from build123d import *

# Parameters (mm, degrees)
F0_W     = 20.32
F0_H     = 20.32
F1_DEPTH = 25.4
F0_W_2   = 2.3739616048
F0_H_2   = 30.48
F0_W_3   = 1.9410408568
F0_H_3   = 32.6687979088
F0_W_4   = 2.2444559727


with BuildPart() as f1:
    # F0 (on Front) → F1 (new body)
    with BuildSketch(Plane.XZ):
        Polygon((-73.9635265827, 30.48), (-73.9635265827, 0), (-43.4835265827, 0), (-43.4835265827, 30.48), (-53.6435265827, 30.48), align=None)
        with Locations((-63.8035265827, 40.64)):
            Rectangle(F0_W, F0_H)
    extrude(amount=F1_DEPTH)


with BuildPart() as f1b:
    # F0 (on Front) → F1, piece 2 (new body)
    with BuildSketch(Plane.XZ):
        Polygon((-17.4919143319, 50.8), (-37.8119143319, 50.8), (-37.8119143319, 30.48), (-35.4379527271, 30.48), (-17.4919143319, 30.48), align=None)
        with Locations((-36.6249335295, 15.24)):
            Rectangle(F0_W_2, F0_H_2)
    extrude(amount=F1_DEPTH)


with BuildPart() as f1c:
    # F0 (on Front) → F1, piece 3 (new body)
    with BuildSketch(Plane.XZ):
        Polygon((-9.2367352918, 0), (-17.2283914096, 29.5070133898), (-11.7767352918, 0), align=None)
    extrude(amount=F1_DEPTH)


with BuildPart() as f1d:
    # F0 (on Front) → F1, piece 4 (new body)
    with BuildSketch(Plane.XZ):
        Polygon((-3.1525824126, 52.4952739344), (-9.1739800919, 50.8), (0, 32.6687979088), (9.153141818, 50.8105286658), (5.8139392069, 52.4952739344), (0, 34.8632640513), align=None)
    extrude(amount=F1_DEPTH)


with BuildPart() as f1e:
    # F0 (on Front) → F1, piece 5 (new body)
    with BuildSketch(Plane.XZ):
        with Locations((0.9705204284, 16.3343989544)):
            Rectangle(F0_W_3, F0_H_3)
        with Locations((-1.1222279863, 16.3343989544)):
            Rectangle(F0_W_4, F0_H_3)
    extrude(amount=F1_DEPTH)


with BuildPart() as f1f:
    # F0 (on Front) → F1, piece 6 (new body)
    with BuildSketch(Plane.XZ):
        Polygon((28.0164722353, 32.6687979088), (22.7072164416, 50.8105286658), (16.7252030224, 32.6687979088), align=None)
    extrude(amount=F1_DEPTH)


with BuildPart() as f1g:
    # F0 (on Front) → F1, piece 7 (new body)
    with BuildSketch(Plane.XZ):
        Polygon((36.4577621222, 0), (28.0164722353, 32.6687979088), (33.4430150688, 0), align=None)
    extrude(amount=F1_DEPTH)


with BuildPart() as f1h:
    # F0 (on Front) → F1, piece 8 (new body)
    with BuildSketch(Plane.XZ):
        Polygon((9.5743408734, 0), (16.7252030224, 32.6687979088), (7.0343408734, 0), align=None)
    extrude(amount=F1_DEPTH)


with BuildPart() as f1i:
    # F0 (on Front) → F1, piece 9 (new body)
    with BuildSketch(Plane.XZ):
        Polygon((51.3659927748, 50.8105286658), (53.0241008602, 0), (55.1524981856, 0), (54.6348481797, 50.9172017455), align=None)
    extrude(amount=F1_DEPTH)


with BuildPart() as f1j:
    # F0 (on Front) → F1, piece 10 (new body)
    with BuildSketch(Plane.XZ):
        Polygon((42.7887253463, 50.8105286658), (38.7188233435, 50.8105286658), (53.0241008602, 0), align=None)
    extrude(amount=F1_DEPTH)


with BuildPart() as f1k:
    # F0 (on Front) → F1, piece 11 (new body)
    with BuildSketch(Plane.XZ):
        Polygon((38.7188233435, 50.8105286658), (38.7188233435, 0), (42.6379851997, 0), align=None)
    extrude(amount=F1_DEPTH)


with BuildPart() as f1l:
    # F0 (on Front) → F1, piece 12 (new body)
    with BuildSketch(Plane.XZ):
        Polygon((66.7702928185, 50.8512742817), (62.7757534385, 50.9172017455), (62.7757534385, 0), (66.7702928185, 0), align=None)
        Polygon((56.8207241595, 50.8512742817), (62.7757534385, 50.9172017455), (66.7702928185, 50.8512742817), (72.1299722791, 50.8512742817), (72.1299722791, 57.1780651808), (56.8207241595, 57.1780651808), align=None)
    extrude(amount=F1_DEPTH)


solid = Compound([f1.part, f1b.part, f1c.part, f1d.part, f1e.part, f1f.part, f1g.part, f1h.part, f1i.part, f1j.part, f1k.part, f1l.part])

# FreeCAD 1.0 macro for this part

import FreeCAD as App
import Part
import Sketcher

V = App.Vector
Q = App.Units.Quantity


def add_polygon(sketch, points):
    """Adds a closed chain of lines whose ends are joined by coincident constraints."""
    first, n = sketch.GeometryCount, len(points)
    for a, b in zip(points, points[1:] + points[:1]):
        sketch.addGeometry(Part.LineSegment(App.Vector(*a, 0), App.Vector(*b, 0)), False)
    for i in range(n):
        sketch.addConstraint(Sketcher.Constraint("Coincident", first + i, 2, first + (i + 1) % n, 1))

doc = App.newDocument("Part")
body = doc.addObject("PartDesign::Body", "Body")

# Sketch on XZ plane
sketch1 = body.newObject("Sketcher::SketchObject", "Sketch")
sketch1.AttachmentSupport = (doc.getObject("XZ_Plane"), [""])
sketch1.MapMode = "FlatFace"
add_polygon(sketch1, [(-74, 0), (-43, 0), (-43, 30), (-54, 30), (-54, 51), (-74, 51)])  # lines 0-5
sketch1.addConstraint(Sketcher.Constraint("Horizontal", 0))
sketch1.addConstraint(Sketcher.Constraint("Vertical", 1))
sketch1.addConstraint(Sketcher.Constraint("Horizontal", 2))
sketch1.addConstraint(Sketcher.Constraint("Vertical", 3))
sketch1.addConstraint(Sketcher.Constraint("Horizontal", 4))
sketch1.addConstraint(Sketcher.Constraint("Vertical", 5))
sketch1.addConstraint(Sketcher.Constraint("PointOnObject", 0, 2, -1))
sketch1.addConstraint(Sketcher.Constraint("Equal", 0, 1))
sketch1.addConstraint(Sketcher.Constraint("Equal", 4, 3))
sketch1.addConstraint(Sketcher.Constraint("DistanceY", 5, 2, 5, 1, Q("2 in")))
sketch1.addConstraint(Sketcher.Constraint("DistanceX", 0, 1, 0, 2, Q("1.2 in")))
sketch1.addConstraint(Sketcher.Constraint("DistanceX", 0, 2, -1, 1, Q("43.483527 mm")))
pad1 = body.newObject("PartDesign::Pad", "Pad")
pad1.Profile = sketch1
pad1.Length = Q("1 in")
body2 = doc.addObject("PartDesign::Body", "Body001")

# Sketch on XZ plane
sketch2 = body2.newObject("Sketcher::SketchObject", "Sketch001")
sketch2.AttachmentSupport = (doc.getObject("XZ_Plane001"), [""])
sketch2.MapMode = "FlatFace"
add_polygon(sketch2, [(-35.4, 30.5), (-17.5, 30.5), (-17.5, 50.8), (-37.8, 50.8), (-37.8, 0), (-35.4, 0)])  # lines 0-5
sketch2.addConstraint(Sketcher.Constraint("Horizontal", 0))
sketch2.addConstraint(Sketcher.Constraint("Vertical", 1))
sketch2.addConstraint(Sketcher.Constraint("Horizontal", 2))
sketch2.addConstraint(Sketcher.Constraint("Vertical", 3))
sketch2.addConstraint(Sketcher.Constraint("Horizontal", 4))
sketch2.addConstraint(Sketcher.Constraint("Vertical", 5))
sketch2.addConstraint(Sketcher.Constraint("PointOnObject", 3, 2, -1))
sketch2.addConstraint(Sketcher.Constraint("Equal", 2, 1))
sketch2.addConstraint(Sketcher.Constraint("DistanceY", 3, 2, 3, 1, Q("2 in")))
sketch2.addConstraint(Sketcher.Constraint("DistanceX", 2, 2, 2, 1, Q("0.8 in")))
sketch2.addConstraint(Sketcher.Constraint("DistanceX", 0, 1, 0, 2, Q("17.946038 mm")))
sketch2.addConstraint(Sketcher.Constraint("DistanceX", 0, 2, -1, 1, Q("17.491914 mm")))
pad2 = body2.newObject("PartDesign::Pad", "Pad001")
pad2.Profile = sketch2
pad2.Length = Q("1 in")
body3 = doc.addObject("PartDesign::Body", "Body002")

# Sketch on XZ plane
sketch3 = body3.newObject("Sketcher::SketchObject", "Sketch002")
sketch3.AttachmentSupport = (doc.getObject("XZ_Plane002"), [""])
sketch3.MapMode = "FlatFace"
add_polygon(sketch3, [(-9.2, 0), (-17.2, 29.5), (-11.8, 0)])  # lines 0-2
sketch3.addConstraint(Sketcher.Constraint("Horizontal", 2))
sketch3.addConstraint(Sketcher.Constraint("PointOnObject", 1, 2, -1))
sketch3.addConstraint(Sketcher.Constraint("DistanceX", 2, 1, 2, 2, Q("0.1 in")))
sketch3.addConstraint(Sketcher.Constraint("Distance", 0, Q("30.57009 mm")))
sketch3.addConstraint(Sketcher.Constraint("DistanceX", 0, 2, -1, 1, Q("17.228391 mm")))
sketch3.addConstraint(Sketcher.Constraint("Distance", 1, Q("30.006406 mm")))
pad3 = body3.newObject("PartDesign::Pad", "Pad002")
pad3.Profile = sketch3
pad3.Length = Q("1 in")
body4 = doc.addObject("PartDesign::Body", "Body003")

# Sketch on XZ plane
sketch4 = body4.newObject("Sketcher::SketchObject", "Sketch003")
sketch4.AttachmentSupport = (doc.getObject("XZ_Plane003"), [""])
sketch4.MapMode = "FlatFace"
add_polygon(sketch4, [(-3.2, 52.5), (-9.2, 50.8), (0, 32.7), (9.2, 50.8), (5.8, 52.5), (0, 34.9)])  # lines 0-5
sketch4.addConstraint(Sketcher.Constraint("PointOnObject", 1, 2, -2))
sketch4.addConstraint(Sketcher.Constraint("PointOnObject", 4, 2, -2))
sketch4.addConstraint(Sketcher.Constraint("Perpendicular", 2, 3))
sketch4.addConstraint(Sketcher.Constraint("Horizontal", 3, 2, 5, 2))
sketch4.addConstraint(Sketcher.Constraint("Equal", 1, 2))
sketch4.addConstraint(Sketcher.Constraint("DistanceY", -1, 1, 0, 2, Q("2 in")))
sketch4.addConstraint(Sketcher.Constraint("Distance", 1, Q("0.8 in")))
sketch4.addConstraint(Sketcher.Constraint("Distance", 3, Q("3.740139 mm")))
sketch4.addConstraint(Sketcher.Constraint("Distance", 4, Q("18.56582 mm")))
sketch4.addConstraint(Sketcher.Constraint("Distance", 5, Q("17.911632 mm")))
sketch4.addConstraint(Sketcher.Constraint("DistanceX", 0, 2, -1, 1, Q("9.17398 mm")))
sketch4.addConstraint(Sketcher.Constraint("DistanceX", -1, 1, 2, 2, Q("9.153142 mm")))
pad4 = body4.newObject("PartDesign::Pad", "Pad003")
pad4.Profile = sketch4
pad4.Length = Q("1 in")
body5 = doc.addObject("PartDesign::Body", "Body004")

# Sketch on XZ plane
sketch5 = body5.newObject("Sketcher::SketchObject", "Sketch004")
sketch5.AttachmentSupport = (doc.getObject("XZ_Plane004"), [""])
sketch5.MapMode = "FlatFace"
add_polygon(sketch5, [(1.9, 0), (1.9, 32.7), (-2.2, 32.7), (-2.2, 0)])  # lines 0-3
sketch5.addConstraint(Sketcher.Constraint("Vertical", 0))
sketch5.addConstraint(Sketcher.Constraint("Horizontal", 1))
sketch5.addConstraint(Sketcher.Constraint("Vertical", 2))
sketch5.addConstraint(Sketcher.Constraint("Horizontal", 3))
sketch5.addConstraint(Sketcher.Constraint("PointOnObject", 2, 2, -1))
sketch5.addConstraint(Sketcher.Constraint("DistanceX", 1, 2, 1, 1, Q("4.185497 mm")))
sketch5.addConstraint(Sketcher.Constraint("DistanceY", 0, 1, 0, 2, Q("32.668798 mm")))
sketch5.addConstraint(Sketcher.Constraint("DistanceX", -1, 1, 0, 2, Q("1.941041 mm")))
pad5 = body5.newObject("PartDesign::Pad", "Pad004")
pad5.Profile = sketch5
pad5.Length = Q("1 in")
body6 = doc.addObject("PartDesign::Body", "Body005")

# Sketch on XZ plane
sketch6 = body6.newObject("Sketcher::SketchObject", "Sketch005")
sketch6.AttachmentSupport = (doc.getObject("XZ_Plane005"), [""])
sketch6.MapMode = "FlatFace"
add_polygon(sketch6, [(28, 33), (23, 51), (17, 33)])  # lines 0-2
sketch6.addConstraint(Sketcher.Constraint("Horizontal", 2))
sketch6.addConstraint(Sketcher.Constraint("DistanceX", 2, 1, 2, 2, Q("11.291269 mm")))
sketch6.addConstraint(Sketcher.Constraint("Distance", 0, Q("18.902661 mm")))
sketch6.addConstraint(Sketcher.Constraint("DistanceY", -1, 1, 0, 2, Q("50.810529 mm")))
sketch6.addConstraint(Sketcher.Constraint("DistanceY", 1, 2, 0, 2, Q("18.141731 mm")))
sketch6.addConstraint(Sketcher.Constraint("DistanceX", -1, 1, 0, 2, Q("22.707216 mm")))
pad6 = body6.newObject("PartDesign::Pad", "Pad005")
pad6.Profile = sketch6
pad6.Length = Q("1 in")
body7 = doc.addObject("PartDesign::Body", "Body006")

# Sketch on XZ plane
sketch7 = body7.newObject("Sketcher::SketchObject", "Sketch006")
sketch7.AttachmentSupport = (doc.getObject("XZ_Plane006"), [""])
sketch7.MapMode = "FlatFace"
add_polygon(sketch7, [(36.5, 0), (28, 32.7), (33.4, 0)])  # lines 0-2
sketch7.addConstraint(Sketcher.Constraint("Horizontal", 2))
sketch7.addConstraint(Sketcher.Constraint("PointOnObject", 1, 2, -1))
sketch7.addConstraint(Sketcher.Constraint("Distance", 0, Q("33.741751 mm")))
sketch7.addConstraint(Sketcher.Constraint("DistanceX", 2, 1, 2, 2, Q("3.014747 mm")))
sketch7.addConstraint(Sketcher.Constraint("DistanceX", 0, 2, 2, 2, Q("8.44129 mm")))
sketch7.addConstraint(Sketcher.Constraint("DistanceX", -1, 1, 0, 2, Q("28.016472 mm")))
pad7 = body7.newObject("PartDesign::Pad", "Pad006")
pad7.Profile = sketch7
pad7.Length = Q("1 in")
body8 = doc.addObject("PartDesign::Body", "Body007")

# Sketch on XZ plane
sketch8 = body8.newObject("Sketcher::SketchObject", "Sketch007")
sketch8.AttachmentSupport = (doc.getObject("XZ_Plane007"), [""])
sketch8.MapMode = "FlatFace"
add_polygon(sketch8, [(9.6, 0), (16.7, 32.7), (7, 0)])  # lines 0-2
sketch8.addConstraint(Sketcher.Constraint("Horizontal", 2))
sketch8.addConstraint(Sketcher.Constraint("PointOnObject", 1, 2, -1))
sketch8.addConstraint(Sketcher.Constraint("DistanceX", 2, 1, 2, 2, Q("0.1 in")))
sketch8.addConstraint(Sketcher.Constraint("DistanceX", -1, 1, 1, 2, Q("7.034341 mm")))
sketch8.addConstraint(Sketcher.Constraint("Distance", 0, Q("33.442266 mm")))
sketch8.addConstraint(Sketcher.Constraint("Distance", 1, Q("34.075844 mm")))
pad8 = body8.newObject("PartDesign::Pad", "Pad007")
pad8.Profile = sketch8
pad8.Length = Q("1 in")
body9 = doc.addObject("PartDesign::Body", "Body008")

# Sketch on XZ plane
sketch9 = body9.newObject("Sketcher::SketchObject", "Sketch008")
sketch9.AttachmentSupport = (doc.getObject("XZ_Plane008"), [""])
sketch9.MapMode = "FlatFace"
add_polygon(sketch9, [(51.4, 50.8), (53, 0), (55.2, 0), (54.6, 50.9)])  # lines 0-3
sketch9.addConstraint(Sketcher.Constraint("Horizontal", 1))
sketch9.addConstraint(Sketcher.Constraint("PointOnObject", 0, 2, -1))
sketch9.addConstraint(Sketcher.Constraint("Perpendicular", 0, 3))
sketch9.addConstraint(Sketcher.Constraint("DistanceX", -1, 1, 0, 2, Q("53.024101 mm")))
sketch9.addConstraint(Sketcher.Constraint("DistanceX", -1, 1, 1, 2, Q("55.152498 mm")))
sketch9.addConstraint(Sketcher.Constraint("DistanceY", -1, 1, 2, 2, Q("50.917202 mm")))
sketch9.addConstraint(Sketcher.Constraint("DistanceX", -1, 1, 2, 2, Q("54.634848 mm")))
sketch9.addConstraint(Sketcher.Constraint("DistanceY", -1, 1, 3, 2, Q("50.810529 mm")))
pad9 = body9.newObject("PartDesign::Pad", "Pad008")
pad9.Profile = sketch9
pad9.Length = Q("1 in")
body10 = doc.addObject("PartDesign::Body", "Body009")

# Sketch on XZ plane
sketch10 = body10.newObject("Sketcher::SketchObject", "Sketch009")
sketch10.AttachmentSupport = (doc.getObject("XZ_Plane009"), [""])
sketch10.MapMode = "FlatFace"
add_polygon(sketch10, [(42.8, 50.8), (38.7, 50.8), (53, 0)])  # lines 0-2
sketch10.addConstraint(Sketcher.Constraint("Horizontal", 0))
sketch10.addConstraint(Sketcher.Constraint("PointOnObject", 1, 2, -1))
sketch10.addConstraint(Sketcher.Constraint("DistanceX", 0, 2, 1, 2, Q("0.5631999 in")))
sketch10.addConstraint(Sketcher.Constraint("DistanceX", -1, 1, 1, 2, Q("53.024101 mm")))
sketch10.addConstraint(Sketcher.Constraint("DistanceX", 0, 2, 0, 1, Q("4.069902 mm")))
sketch10.addConstraint(Sketcher.Constraint("DistanceY", -1, 1, 0, 2, Q("50.810529 mm")))
pad10 = body10.newObject("PartDesign::Pad", "Pad009")
pad10.Profile = sketch10
pad10.Length = Q("1 in")
body11 = doc.addObject("PartDesign::Body", "Body010")

# Sketch on XZ plane
sketch11 = body11.newObject("Sketcher::SketchObject", "Sketch010")
sketch11.AttachmentSupport = (doc.getObject("XZ_Plane010"), [""])
sketch11.MapMode = "FlatFace"
add_polygon(sketch11, [(38.7, 50.8), (38.7, 0), (42.6, 0)])  # lines 0-2
sketch11.addConstraint(Sketcher.Constraint("Vertical", 0))
sketch11.addConstraint(Sketcher.Constraint("Horizontal", 1))
sketch11.addConstraint(Sketcher.Constraint("PointOnObject", 0, 2, -1))
sketch11.addConstraint(Sketcher.Constraint("DistanceX", 1, 1, 1, 2, Q("3.919162 mm")))
sketch11.addConstraint(Sketcher.Constraint("DistanceY", 0, 2, 0, 1, Q("50.810529 mm")))
sketch11.addConstraint(Sketcher.Constraint("DistanceX", -1, 1, 0, 2, Q("38.718823 mm")))
pad11 = body11.newObject("PartDesign::Pad", "Pad010")
pad11.Profile = sketch11
pad11.Length = Q("1 in")
body12 = doc.addObject("PartDesign::Body", "Body011")

# Sketch on XZ plane
sketch12 = body12.newObject("Sketcher::SketchObject", "Sketch011")
sketch12.AttachmentSupport = (doc.getObject("XZ_Plane011"), [""])
sketch12.MapMode = "FlatFace"
add_polygon(sketch12, [(62.8, 0), (66.8, 0), (66.8, 50.9), (72.1, 50.9), (72.1, 57.2), (56.8, 57.2), (56.8, 50.9), (62.8, 50.9)])  # lines 0-7
sketch12.addConstraint(Sketcher.Constraint("Horizontal", 0))
sketch12.addConstraint(Sketcher.Constraint("Vertical", 1))
sketch12.addConstraint(Sketcher.Constraint("Horizontal", 2))
sketch12.addConstraint(Sketcher.Constraint("Vertical", 3))
sketch12.addConstraint(Sketcher.Constraint("Horizontal", 4))
sketch12.addConstraint(Sketcher.Constraint("Vertical", 5))
sketch12.addConstraint(Sketcher.Constraint("Vertical", 7))
sketch12.addConstraint(Sketcher.Constraint("PointOnObject", 0, 2, -1))
sketch12.addConstraint(Sketcher.Constraint("Horizontal", 2, 2, 5, 2))
sketch12.addConstraint(Sketcher.Constraint("DistanceY", 7, 2, 7, 1, Q("50.917202 mm")))
sketch12.addConstraint(Sketcher.Constraint("DistanceX", 0, 1, 0, 2, Q("3.994539 mm")))
sketch12.addConstraint(Sketcher.Constraint("DistanceX", 2, 1, 2, 2, Q("5.359679 mm")))
sketch12.addConstraint(Sketcher.Constraint("DistanceX", 4, 2, 4, 1, Q("15.309248 mm")))
sketch12.addConstraint(Sketcher.Constraint("DistanceY", 3, 1, 3, 2, Q("6.326791 mm")))
sketch12.addConstraint(Sketcher.Constraint("DistanceY", 1, 1, 1, 2, Q("50.851274 mm")))
sketch12.addConstraint(Sketcher.Constraint("DistanceX", -1, 1, 0, 2, Q("66.770293 mm")))
pad12 = body12.newObject("PartDesign::Pad", "Pad011")
pad12.Profile = sketch12
pad12.Length = Q("1 in")

doc.recompute()
